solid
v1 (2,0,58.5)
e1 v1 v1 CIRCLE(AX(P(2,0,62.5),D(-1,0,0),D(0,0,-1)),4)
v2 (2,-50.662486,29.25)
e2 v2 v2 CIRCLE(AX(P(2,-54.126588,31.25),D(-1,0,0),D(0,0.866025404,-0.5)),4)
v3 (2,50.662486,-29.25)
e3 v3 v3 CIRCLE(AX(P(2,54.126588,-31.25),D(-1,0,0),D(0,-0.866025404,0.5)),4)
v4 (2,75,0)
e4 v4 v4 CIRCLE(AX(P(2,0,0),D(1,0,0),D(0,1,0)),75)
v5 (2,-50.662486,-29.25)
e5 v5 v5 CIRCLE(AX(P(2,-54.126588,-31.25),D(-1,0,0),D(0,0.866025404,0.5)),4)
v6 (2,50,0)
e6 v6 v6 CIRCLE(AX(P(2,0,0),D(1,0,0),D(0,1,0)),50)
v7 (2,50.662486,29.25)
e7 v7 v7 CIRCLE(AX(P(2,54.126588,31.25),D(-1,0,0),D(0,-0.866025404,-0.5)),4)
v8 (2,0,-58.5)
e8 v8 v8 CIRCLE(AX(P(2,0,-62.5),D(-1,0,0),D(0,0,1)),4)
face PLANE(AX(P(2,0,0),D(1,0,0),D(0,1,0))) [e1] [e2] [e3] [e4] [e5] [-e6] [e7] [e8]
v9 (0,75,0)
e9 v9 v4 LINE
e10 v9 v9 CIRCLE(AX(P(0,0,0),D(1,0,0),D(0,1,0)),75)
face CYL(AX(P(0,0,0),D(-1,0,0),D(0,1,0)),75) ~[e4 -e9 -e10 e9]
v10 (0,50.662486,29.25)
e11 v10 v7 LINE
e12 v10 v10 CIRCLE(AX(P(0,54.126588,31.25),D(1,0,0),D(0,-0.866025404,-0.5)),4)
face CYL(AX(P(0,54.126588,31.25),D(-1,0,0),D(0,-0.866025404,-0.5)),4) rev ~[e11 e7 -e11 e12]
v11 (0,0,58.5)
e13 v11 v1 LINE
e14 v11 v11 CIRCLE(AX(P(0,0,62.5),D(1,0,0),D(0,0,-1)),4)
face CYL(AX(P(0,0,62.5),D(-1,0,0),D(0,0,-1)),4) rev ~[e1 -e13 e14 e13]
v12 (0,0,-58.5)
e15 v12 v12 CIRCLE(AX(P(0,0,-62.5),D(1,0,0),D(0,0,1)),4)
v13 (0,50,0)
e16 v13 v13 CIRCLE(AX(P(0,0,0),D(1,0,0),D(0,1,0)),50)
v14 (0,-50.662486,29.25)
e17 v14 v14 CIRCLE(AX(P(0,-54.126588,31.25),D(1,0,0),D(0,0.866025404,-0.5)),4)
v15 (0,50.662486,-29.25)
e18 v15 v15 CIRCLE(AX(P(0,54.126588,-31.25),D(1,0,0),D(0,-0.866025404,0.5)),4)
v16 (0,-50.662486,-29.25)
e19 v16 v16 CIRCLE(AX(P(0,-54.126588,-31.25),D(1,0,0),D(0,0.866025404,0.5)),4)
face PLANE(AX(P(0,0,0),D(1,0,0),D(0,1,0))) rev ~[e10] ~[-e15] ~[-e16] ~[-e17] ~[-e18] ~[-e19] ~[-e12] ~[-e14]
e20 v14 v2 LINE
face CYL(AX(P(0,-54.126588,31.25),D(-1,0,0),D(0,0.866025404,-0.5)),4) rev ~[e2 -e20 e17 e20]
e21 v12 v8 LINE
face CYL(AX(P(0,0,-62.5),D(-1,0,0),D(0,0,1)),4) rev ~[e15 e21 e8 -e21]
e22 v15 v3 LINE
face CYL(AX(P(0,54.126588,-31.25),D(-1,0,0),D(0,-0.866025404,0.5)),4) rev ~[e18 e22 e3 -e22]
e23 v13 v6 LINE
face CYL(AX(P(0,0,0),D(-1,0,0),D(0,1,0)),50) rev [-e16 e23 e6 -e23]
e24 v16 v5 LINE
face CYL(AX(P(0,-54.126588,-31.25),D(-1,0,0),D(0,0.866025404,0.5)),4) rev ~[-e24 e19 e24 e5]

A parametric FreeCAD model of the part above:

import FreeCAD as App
import Part
import Sketcher

V = App.Vector

doc = App.newDocument("Part")
body = doc.addObject("PartDesign::Body", "Body")

# Sketch on YZ plane
sketch1 = body.newObject("Sketcher::SketchObject", "Sketch")
sketch1.AttachmentSupport = (doc.getObject("YZ_Plane"), [""])
sketch1.MapMode = "FlatFace"
sketch1.addGeometry([
    Part.Circle(V(0, 0, 0), V(0, 0, 1), 75),
    Part.Circle(V(0, 0, 0), V(0, 0, 1), 50),
], False)
sketch1.addConstraint([
    Sketcher.Constraint("Coincident", 0, 3, -1, 1),
    Sketcher.Constraint("Coincident", 1, 3, -1, 1),
    Sketcher.Constraint("Diameter", 0, 150.0),
    Sketcher.Constraint("Diameter", 1, 100.0),
])
pad1 = body.newObject("PartDesign::Pad", "Pad")
pad1.Profile = sketch1
pad1.Length = 2

# Sketch on YZ plane
sketch2 = body.newObject("Sketcher::SketchObject", "Sketch001")
sketch2.AttachmentSupport = (doc.getObject("YZ_Plane"), [""])
sketch2.MapMode = "FlatFace"
sketch2.addGeometry(Part.Circle(V(0, -62.5, 0), V(0, 0, 1), 4), False)
sketch2.addConstraint([
    Sketcher.Constraint("PointOnObject", 0, 3, -2),
    Sketcher.Constraint("Diameter", 0, 8.0),
    Sketcher.Constraint("DistanceY", 0, 3, -1, 1, 62.5),
])
pocket1 = body.newObject("PartDesign::Pocket", "Pocket")
pocket1.Profile = sketch2
pocket1.Length = 2
pocket1.Reversed = True
doc.recompute()

polarpattern = body.newObject("PartDesign::PolarPattern", "PolarPattern")
polarpattern.Originals = [pocket1]
polarpattern.Axis = (doc.getObject("X_Axis"), [""])
polarpattern.Angle = 360
polarpattern.Occurrences = 6
body.Tip = polarpattern

doc.recompute()
